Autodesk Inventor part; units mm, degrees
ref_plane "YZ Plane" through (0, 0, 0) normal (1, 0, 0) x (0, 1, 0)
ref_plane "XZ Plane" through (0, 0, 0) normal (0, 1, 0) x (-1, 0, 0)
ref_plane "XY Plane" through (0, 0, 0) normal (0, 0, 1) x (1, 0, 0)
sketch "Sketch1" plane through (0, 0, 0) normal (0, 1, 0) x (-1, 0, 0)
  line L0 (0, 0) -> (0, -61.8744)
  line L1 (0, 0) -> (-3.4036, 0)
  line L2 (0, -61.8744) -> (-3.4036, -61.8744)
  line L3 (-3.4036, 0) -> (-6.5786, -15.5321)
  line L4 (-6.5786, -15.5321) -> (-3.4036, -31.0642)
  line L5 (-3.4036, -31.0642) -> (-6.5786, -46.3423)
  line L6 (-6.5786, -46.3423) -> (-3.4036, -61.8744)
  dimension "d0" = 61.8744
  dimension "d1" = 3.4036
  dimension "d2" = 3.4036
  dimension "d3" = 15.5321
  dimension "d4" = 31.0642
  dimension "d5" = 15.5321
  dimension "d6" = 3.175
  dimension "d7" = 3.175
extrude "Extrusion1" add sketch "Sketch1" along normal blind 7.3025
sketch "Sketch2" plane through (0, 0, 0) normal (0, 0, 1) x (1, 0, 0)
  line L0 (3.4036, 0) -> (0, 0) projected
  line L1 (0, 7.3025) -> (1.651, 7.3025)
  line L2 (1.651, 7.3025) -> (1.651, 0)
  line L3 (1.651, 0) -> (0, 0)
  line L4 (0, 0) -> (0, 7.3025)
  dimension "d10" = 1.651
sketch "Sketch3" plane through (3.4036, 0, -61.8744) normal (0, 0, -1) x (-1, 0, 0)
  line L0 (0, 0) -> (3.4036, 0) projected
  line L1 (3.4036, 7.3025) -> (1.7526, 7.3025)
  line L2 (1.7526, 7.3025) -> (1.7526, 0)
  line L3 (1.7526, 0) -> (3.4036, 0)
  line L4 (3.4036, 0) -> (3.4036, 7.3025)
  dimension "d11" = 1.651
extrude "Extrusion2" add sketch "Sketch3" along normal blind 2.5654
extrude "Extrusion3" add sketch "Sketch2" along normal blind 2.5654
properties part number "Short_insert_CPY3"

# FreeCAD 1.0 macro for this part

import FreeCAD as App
import Part
import Sketcher
from FreeCAD import Vector
Q = App.Units.Quantity

doc = App.newDocument("Part")
body = doc.addObject("PartDesign::Body", "Body")

# Sketch on XZ plane
sketch1 = body.newObject("Sketcher::SketchObject", "Sketch")
sketch1.AttachmentSupport = (doc.getObject("XZ_Plane"), [""])
sketch1.MapMode = "FlatFace"
sketch1.addGeometry(Part.LineSegment(Vector(0, -61.8744, 0), Vector(0, 0, 0)), False)
sketch1.addGeometry(Part.LineSegment(Vector(0, 0, 0), Vector(3.4036, 0, 0)), False)
sketch1.addGeometry(Part.LineSegment(Vector(3.4036, 0, 0), Vector(6.5786, -15.5321, 0)), False)
sketch1.addGeometry(Part.LineSegment(Vector(6.5786, -15.5321, 0), Vector(3.4036, -31.0642, 0)), False)
sketch1.addGeometry(Part.LineSegment(Vector(3.4036, -31.0642, 0), Vector(6.5786, -46.3423, 0)), False)
sketch1.addGeometry(Part.LineSegment(Vector(6.5786, -46.3423, 0), Vector(3.4036, -61.8744, 0)), False)
sketch1.addGeometry(Part.LineSegment(Vector(3.4036, -61.8744, 0), Vector(0, -61.8744, 0)), False)
sketch1.addConstraint(Sketcher.Constraint("Coincident", 0, 2, 1, 1))
sketch1.addConstraint(Sketcher.Constraint("Coincident", 1, 2, 2, 1))
sketch1.addConstraint(Sketcher.Constraint("Coincident", 2, 2, 3, 1))
sketch1.addConstraint(Sketcher.Constraint("Coincident", 3, 2, 4, 1))
sketch1.addConstraint(Sketcher.Constraint("Coincident", 4, 2, 5, 1))
sketch1.addConstraint(Sketcher.Constraint("Coincident", 5, 2, 6, 1))
sketch1.addConstraint(Sketcher.Constraint("Coincident", 6, 2, 0, 1))
sketch1.addConstraint(Sketcher.Constraint("Vertical", 0))
sketch1.addConstraint(Sketcher.Constraint("Horizontal", 1))
sketch1.addConstraint(Sketcher.Constraint("Horizontal", 6))
sketch1.addConstraint(Sketcher.Constraint("Coincident", 0, 2, -1, 1))
sketch1.addConstraint(Sketcher.Constraint("Parallel", 3, 5))
sketch1.addConstraint(Sketcher.Constraint("Vertical", 1, 2, 3, 2))
sketch1.addConstraint(Sketcher.Constraint("Vertical", 2, 2, 4, 2))
sketch1.addConstraint(Sketcher.Constraint("Vertical", 3, 2, 5, 2))
sketch1.addConstraint(Sketcher.Constraint("Equal", 2, 3))
sketch1.addConstraint(Sketcher.Constraint("DistanceX", 1, 1, 1, 2, Q("0.134 in")))
sketch1.addConstraint(Sketcher.Constraint("DistanceY", 0, 1, 0, 2, Q("2.436 in")))
sketch1.addConstraint(Sketcher.Constraint("DistanceY", 3, 2, -1, 1, Q("1.223 in")))
sketch1.addConstraint(Sketcher.Constraint("DistanceX", 1, 2, 2, 2, Q("0.125 in")))
pad1 = body.newObject("PartDesign::Pad", "Pad")
pad1.Profile = sketch1
pad1.Length = Q("0.2875 in")
pad1.Reversed = True

# Sketch on XY plane
sketch2 = body.newObject("Sketcher::SketchObject", "Sketch001")
sketch2.AttachmentSupport = (doc.getObject("XY_Plane"), [""])
sketch2.MapMode = "FlatFace"
sketch2.AttachmentOffset = App.Placement(Vector(0, 0, -2.436 * 25.4), App.Rotation())
sketch2.addGeometry(Part.LineSegment(Vector(1.651, 7.3025, 0), Vector(1.651, 0, 0)), False)
sketch2.addGeometry(Part.LineSegment(Vector(1.651, 0, 0), Vector(0, 0, 0)), False)
sketch2.addGeometry(Part.LineSegment(Vector(0, 0, 0), Vector(0, 7.3025, 0)), False)
sketch2.addGeometry(Part.LineSegment(Vector(0, 7.3025, 0), Vector(1.651, 7.3025, 0)), False)
sketch2.addConstraint(Sketcher.Constraint("Coincident", 0, 2, 1, 1))
sketch2.addConstraint(Sketcher.Constraint("Coincident", 1, 2, 2, 1))
sketch2.addConstraint(Sketcher.Constraint("Coincident", 2, 2, 3, 1))
sketch2.addConstraint(Sketcher.Constraint("Coincident", 3, 2, 0, 1))
sketch2.addConstraint(Sketcher.Constraint("Vertical", 0))
sketch2.addConstraint(Sketcher.Constraint("Horizontal", 1))
sketch2.addConstraint(Sketcher.Constraint("Vertical", 2))
sketch2.addConstraint(Sketcher.Constraint("Horizontal", 3))
sketch2.addConstraint(Sketcher.Constraint("Coincident", 1, 2, -1, 1))
sketch2.addConstraint(Sketcher.Constraint("DistanceX", 1, 2, 1, 1, Q("0.065 in")))
sketch2.addConstraint(Sketcher.Constraint("DistanceY", 0, 2, 0, 1, Q("0.2875 in")))
pad2 = body.newObject("PartDesign::Pad", "Pad001")
pad2.Profile = sketch2
pad2.Length = Q("0.101 in")
pad2.Reversed = True

# Sketch on XY plane
sketch3 = body.newObject("Sketcher::SketchObject", "Sketch002")
sketch3.AttachmentSupport = (doc.getObject("XY_Plane"), [""])
sketch3.MapMode = "FlatFace"
sketch3.addGeometry(Part.LineSegment(Vector(0, 0, 0), Vector(1.651, 0, 0)), False)
sketch3.addGeometry(Part.LineSegment(Vector(1.651, 0, 0), Vector(1.651, 7.3025, 0)), False)
sketch3.addGeometry(Part.LineSegment(Vector(1.651, 7.3025, 0), Vector(0, 7.3025, 0)), False)
sketch3.addGeometry(Part.LineSegment(Vector(0, 7.3025, 0), Vector(0, 0, 0)), False)
sketch3.addConstraint(Sketcher.Constraint("Coincident", 0, 2, 1, 1))
sketch3.addConstraint(Sketcher.Constraint("Coincident", 1, 2, 2, 1))
sketch3.addConstraint(Sketcher.Constraint("Coincident", 2, 2, 3, 1))
sketch3.addConstraint(Sketcher.Constraint("Coincident", 3, 2, 0, 1))
sketch3.addConstraint(Sketcher.Constraint("Horizontal", 0))
sketch3.addConstraint(Sketcher.Constraint("Vertical", 1))
sketch3.addConstraint(Sketcher.Constraint("Horizontal", 2))
sketch3.addConstraint(Sketcher.Constraint("Vertical", 3))
sketch3.addConstraint(Sketcher.Constraint("Coincident", 3, 2, -1, 1))
sketch3.addConstraint(Sketcher.Constraint("DistanceX", 0, 1, 0, 2, Q("0.065 in")))
sketch3.addConstraint(Sketcher.Constraint("DistanceY", 1, 1, 1, 2, Q("0.2875 in")))
pad3 = body.newObject("PartDesign::Pad", "Pad002")
pad3.Profile = sketch3
pad3.Length = Q("0.101 in")

doc.recompute()
